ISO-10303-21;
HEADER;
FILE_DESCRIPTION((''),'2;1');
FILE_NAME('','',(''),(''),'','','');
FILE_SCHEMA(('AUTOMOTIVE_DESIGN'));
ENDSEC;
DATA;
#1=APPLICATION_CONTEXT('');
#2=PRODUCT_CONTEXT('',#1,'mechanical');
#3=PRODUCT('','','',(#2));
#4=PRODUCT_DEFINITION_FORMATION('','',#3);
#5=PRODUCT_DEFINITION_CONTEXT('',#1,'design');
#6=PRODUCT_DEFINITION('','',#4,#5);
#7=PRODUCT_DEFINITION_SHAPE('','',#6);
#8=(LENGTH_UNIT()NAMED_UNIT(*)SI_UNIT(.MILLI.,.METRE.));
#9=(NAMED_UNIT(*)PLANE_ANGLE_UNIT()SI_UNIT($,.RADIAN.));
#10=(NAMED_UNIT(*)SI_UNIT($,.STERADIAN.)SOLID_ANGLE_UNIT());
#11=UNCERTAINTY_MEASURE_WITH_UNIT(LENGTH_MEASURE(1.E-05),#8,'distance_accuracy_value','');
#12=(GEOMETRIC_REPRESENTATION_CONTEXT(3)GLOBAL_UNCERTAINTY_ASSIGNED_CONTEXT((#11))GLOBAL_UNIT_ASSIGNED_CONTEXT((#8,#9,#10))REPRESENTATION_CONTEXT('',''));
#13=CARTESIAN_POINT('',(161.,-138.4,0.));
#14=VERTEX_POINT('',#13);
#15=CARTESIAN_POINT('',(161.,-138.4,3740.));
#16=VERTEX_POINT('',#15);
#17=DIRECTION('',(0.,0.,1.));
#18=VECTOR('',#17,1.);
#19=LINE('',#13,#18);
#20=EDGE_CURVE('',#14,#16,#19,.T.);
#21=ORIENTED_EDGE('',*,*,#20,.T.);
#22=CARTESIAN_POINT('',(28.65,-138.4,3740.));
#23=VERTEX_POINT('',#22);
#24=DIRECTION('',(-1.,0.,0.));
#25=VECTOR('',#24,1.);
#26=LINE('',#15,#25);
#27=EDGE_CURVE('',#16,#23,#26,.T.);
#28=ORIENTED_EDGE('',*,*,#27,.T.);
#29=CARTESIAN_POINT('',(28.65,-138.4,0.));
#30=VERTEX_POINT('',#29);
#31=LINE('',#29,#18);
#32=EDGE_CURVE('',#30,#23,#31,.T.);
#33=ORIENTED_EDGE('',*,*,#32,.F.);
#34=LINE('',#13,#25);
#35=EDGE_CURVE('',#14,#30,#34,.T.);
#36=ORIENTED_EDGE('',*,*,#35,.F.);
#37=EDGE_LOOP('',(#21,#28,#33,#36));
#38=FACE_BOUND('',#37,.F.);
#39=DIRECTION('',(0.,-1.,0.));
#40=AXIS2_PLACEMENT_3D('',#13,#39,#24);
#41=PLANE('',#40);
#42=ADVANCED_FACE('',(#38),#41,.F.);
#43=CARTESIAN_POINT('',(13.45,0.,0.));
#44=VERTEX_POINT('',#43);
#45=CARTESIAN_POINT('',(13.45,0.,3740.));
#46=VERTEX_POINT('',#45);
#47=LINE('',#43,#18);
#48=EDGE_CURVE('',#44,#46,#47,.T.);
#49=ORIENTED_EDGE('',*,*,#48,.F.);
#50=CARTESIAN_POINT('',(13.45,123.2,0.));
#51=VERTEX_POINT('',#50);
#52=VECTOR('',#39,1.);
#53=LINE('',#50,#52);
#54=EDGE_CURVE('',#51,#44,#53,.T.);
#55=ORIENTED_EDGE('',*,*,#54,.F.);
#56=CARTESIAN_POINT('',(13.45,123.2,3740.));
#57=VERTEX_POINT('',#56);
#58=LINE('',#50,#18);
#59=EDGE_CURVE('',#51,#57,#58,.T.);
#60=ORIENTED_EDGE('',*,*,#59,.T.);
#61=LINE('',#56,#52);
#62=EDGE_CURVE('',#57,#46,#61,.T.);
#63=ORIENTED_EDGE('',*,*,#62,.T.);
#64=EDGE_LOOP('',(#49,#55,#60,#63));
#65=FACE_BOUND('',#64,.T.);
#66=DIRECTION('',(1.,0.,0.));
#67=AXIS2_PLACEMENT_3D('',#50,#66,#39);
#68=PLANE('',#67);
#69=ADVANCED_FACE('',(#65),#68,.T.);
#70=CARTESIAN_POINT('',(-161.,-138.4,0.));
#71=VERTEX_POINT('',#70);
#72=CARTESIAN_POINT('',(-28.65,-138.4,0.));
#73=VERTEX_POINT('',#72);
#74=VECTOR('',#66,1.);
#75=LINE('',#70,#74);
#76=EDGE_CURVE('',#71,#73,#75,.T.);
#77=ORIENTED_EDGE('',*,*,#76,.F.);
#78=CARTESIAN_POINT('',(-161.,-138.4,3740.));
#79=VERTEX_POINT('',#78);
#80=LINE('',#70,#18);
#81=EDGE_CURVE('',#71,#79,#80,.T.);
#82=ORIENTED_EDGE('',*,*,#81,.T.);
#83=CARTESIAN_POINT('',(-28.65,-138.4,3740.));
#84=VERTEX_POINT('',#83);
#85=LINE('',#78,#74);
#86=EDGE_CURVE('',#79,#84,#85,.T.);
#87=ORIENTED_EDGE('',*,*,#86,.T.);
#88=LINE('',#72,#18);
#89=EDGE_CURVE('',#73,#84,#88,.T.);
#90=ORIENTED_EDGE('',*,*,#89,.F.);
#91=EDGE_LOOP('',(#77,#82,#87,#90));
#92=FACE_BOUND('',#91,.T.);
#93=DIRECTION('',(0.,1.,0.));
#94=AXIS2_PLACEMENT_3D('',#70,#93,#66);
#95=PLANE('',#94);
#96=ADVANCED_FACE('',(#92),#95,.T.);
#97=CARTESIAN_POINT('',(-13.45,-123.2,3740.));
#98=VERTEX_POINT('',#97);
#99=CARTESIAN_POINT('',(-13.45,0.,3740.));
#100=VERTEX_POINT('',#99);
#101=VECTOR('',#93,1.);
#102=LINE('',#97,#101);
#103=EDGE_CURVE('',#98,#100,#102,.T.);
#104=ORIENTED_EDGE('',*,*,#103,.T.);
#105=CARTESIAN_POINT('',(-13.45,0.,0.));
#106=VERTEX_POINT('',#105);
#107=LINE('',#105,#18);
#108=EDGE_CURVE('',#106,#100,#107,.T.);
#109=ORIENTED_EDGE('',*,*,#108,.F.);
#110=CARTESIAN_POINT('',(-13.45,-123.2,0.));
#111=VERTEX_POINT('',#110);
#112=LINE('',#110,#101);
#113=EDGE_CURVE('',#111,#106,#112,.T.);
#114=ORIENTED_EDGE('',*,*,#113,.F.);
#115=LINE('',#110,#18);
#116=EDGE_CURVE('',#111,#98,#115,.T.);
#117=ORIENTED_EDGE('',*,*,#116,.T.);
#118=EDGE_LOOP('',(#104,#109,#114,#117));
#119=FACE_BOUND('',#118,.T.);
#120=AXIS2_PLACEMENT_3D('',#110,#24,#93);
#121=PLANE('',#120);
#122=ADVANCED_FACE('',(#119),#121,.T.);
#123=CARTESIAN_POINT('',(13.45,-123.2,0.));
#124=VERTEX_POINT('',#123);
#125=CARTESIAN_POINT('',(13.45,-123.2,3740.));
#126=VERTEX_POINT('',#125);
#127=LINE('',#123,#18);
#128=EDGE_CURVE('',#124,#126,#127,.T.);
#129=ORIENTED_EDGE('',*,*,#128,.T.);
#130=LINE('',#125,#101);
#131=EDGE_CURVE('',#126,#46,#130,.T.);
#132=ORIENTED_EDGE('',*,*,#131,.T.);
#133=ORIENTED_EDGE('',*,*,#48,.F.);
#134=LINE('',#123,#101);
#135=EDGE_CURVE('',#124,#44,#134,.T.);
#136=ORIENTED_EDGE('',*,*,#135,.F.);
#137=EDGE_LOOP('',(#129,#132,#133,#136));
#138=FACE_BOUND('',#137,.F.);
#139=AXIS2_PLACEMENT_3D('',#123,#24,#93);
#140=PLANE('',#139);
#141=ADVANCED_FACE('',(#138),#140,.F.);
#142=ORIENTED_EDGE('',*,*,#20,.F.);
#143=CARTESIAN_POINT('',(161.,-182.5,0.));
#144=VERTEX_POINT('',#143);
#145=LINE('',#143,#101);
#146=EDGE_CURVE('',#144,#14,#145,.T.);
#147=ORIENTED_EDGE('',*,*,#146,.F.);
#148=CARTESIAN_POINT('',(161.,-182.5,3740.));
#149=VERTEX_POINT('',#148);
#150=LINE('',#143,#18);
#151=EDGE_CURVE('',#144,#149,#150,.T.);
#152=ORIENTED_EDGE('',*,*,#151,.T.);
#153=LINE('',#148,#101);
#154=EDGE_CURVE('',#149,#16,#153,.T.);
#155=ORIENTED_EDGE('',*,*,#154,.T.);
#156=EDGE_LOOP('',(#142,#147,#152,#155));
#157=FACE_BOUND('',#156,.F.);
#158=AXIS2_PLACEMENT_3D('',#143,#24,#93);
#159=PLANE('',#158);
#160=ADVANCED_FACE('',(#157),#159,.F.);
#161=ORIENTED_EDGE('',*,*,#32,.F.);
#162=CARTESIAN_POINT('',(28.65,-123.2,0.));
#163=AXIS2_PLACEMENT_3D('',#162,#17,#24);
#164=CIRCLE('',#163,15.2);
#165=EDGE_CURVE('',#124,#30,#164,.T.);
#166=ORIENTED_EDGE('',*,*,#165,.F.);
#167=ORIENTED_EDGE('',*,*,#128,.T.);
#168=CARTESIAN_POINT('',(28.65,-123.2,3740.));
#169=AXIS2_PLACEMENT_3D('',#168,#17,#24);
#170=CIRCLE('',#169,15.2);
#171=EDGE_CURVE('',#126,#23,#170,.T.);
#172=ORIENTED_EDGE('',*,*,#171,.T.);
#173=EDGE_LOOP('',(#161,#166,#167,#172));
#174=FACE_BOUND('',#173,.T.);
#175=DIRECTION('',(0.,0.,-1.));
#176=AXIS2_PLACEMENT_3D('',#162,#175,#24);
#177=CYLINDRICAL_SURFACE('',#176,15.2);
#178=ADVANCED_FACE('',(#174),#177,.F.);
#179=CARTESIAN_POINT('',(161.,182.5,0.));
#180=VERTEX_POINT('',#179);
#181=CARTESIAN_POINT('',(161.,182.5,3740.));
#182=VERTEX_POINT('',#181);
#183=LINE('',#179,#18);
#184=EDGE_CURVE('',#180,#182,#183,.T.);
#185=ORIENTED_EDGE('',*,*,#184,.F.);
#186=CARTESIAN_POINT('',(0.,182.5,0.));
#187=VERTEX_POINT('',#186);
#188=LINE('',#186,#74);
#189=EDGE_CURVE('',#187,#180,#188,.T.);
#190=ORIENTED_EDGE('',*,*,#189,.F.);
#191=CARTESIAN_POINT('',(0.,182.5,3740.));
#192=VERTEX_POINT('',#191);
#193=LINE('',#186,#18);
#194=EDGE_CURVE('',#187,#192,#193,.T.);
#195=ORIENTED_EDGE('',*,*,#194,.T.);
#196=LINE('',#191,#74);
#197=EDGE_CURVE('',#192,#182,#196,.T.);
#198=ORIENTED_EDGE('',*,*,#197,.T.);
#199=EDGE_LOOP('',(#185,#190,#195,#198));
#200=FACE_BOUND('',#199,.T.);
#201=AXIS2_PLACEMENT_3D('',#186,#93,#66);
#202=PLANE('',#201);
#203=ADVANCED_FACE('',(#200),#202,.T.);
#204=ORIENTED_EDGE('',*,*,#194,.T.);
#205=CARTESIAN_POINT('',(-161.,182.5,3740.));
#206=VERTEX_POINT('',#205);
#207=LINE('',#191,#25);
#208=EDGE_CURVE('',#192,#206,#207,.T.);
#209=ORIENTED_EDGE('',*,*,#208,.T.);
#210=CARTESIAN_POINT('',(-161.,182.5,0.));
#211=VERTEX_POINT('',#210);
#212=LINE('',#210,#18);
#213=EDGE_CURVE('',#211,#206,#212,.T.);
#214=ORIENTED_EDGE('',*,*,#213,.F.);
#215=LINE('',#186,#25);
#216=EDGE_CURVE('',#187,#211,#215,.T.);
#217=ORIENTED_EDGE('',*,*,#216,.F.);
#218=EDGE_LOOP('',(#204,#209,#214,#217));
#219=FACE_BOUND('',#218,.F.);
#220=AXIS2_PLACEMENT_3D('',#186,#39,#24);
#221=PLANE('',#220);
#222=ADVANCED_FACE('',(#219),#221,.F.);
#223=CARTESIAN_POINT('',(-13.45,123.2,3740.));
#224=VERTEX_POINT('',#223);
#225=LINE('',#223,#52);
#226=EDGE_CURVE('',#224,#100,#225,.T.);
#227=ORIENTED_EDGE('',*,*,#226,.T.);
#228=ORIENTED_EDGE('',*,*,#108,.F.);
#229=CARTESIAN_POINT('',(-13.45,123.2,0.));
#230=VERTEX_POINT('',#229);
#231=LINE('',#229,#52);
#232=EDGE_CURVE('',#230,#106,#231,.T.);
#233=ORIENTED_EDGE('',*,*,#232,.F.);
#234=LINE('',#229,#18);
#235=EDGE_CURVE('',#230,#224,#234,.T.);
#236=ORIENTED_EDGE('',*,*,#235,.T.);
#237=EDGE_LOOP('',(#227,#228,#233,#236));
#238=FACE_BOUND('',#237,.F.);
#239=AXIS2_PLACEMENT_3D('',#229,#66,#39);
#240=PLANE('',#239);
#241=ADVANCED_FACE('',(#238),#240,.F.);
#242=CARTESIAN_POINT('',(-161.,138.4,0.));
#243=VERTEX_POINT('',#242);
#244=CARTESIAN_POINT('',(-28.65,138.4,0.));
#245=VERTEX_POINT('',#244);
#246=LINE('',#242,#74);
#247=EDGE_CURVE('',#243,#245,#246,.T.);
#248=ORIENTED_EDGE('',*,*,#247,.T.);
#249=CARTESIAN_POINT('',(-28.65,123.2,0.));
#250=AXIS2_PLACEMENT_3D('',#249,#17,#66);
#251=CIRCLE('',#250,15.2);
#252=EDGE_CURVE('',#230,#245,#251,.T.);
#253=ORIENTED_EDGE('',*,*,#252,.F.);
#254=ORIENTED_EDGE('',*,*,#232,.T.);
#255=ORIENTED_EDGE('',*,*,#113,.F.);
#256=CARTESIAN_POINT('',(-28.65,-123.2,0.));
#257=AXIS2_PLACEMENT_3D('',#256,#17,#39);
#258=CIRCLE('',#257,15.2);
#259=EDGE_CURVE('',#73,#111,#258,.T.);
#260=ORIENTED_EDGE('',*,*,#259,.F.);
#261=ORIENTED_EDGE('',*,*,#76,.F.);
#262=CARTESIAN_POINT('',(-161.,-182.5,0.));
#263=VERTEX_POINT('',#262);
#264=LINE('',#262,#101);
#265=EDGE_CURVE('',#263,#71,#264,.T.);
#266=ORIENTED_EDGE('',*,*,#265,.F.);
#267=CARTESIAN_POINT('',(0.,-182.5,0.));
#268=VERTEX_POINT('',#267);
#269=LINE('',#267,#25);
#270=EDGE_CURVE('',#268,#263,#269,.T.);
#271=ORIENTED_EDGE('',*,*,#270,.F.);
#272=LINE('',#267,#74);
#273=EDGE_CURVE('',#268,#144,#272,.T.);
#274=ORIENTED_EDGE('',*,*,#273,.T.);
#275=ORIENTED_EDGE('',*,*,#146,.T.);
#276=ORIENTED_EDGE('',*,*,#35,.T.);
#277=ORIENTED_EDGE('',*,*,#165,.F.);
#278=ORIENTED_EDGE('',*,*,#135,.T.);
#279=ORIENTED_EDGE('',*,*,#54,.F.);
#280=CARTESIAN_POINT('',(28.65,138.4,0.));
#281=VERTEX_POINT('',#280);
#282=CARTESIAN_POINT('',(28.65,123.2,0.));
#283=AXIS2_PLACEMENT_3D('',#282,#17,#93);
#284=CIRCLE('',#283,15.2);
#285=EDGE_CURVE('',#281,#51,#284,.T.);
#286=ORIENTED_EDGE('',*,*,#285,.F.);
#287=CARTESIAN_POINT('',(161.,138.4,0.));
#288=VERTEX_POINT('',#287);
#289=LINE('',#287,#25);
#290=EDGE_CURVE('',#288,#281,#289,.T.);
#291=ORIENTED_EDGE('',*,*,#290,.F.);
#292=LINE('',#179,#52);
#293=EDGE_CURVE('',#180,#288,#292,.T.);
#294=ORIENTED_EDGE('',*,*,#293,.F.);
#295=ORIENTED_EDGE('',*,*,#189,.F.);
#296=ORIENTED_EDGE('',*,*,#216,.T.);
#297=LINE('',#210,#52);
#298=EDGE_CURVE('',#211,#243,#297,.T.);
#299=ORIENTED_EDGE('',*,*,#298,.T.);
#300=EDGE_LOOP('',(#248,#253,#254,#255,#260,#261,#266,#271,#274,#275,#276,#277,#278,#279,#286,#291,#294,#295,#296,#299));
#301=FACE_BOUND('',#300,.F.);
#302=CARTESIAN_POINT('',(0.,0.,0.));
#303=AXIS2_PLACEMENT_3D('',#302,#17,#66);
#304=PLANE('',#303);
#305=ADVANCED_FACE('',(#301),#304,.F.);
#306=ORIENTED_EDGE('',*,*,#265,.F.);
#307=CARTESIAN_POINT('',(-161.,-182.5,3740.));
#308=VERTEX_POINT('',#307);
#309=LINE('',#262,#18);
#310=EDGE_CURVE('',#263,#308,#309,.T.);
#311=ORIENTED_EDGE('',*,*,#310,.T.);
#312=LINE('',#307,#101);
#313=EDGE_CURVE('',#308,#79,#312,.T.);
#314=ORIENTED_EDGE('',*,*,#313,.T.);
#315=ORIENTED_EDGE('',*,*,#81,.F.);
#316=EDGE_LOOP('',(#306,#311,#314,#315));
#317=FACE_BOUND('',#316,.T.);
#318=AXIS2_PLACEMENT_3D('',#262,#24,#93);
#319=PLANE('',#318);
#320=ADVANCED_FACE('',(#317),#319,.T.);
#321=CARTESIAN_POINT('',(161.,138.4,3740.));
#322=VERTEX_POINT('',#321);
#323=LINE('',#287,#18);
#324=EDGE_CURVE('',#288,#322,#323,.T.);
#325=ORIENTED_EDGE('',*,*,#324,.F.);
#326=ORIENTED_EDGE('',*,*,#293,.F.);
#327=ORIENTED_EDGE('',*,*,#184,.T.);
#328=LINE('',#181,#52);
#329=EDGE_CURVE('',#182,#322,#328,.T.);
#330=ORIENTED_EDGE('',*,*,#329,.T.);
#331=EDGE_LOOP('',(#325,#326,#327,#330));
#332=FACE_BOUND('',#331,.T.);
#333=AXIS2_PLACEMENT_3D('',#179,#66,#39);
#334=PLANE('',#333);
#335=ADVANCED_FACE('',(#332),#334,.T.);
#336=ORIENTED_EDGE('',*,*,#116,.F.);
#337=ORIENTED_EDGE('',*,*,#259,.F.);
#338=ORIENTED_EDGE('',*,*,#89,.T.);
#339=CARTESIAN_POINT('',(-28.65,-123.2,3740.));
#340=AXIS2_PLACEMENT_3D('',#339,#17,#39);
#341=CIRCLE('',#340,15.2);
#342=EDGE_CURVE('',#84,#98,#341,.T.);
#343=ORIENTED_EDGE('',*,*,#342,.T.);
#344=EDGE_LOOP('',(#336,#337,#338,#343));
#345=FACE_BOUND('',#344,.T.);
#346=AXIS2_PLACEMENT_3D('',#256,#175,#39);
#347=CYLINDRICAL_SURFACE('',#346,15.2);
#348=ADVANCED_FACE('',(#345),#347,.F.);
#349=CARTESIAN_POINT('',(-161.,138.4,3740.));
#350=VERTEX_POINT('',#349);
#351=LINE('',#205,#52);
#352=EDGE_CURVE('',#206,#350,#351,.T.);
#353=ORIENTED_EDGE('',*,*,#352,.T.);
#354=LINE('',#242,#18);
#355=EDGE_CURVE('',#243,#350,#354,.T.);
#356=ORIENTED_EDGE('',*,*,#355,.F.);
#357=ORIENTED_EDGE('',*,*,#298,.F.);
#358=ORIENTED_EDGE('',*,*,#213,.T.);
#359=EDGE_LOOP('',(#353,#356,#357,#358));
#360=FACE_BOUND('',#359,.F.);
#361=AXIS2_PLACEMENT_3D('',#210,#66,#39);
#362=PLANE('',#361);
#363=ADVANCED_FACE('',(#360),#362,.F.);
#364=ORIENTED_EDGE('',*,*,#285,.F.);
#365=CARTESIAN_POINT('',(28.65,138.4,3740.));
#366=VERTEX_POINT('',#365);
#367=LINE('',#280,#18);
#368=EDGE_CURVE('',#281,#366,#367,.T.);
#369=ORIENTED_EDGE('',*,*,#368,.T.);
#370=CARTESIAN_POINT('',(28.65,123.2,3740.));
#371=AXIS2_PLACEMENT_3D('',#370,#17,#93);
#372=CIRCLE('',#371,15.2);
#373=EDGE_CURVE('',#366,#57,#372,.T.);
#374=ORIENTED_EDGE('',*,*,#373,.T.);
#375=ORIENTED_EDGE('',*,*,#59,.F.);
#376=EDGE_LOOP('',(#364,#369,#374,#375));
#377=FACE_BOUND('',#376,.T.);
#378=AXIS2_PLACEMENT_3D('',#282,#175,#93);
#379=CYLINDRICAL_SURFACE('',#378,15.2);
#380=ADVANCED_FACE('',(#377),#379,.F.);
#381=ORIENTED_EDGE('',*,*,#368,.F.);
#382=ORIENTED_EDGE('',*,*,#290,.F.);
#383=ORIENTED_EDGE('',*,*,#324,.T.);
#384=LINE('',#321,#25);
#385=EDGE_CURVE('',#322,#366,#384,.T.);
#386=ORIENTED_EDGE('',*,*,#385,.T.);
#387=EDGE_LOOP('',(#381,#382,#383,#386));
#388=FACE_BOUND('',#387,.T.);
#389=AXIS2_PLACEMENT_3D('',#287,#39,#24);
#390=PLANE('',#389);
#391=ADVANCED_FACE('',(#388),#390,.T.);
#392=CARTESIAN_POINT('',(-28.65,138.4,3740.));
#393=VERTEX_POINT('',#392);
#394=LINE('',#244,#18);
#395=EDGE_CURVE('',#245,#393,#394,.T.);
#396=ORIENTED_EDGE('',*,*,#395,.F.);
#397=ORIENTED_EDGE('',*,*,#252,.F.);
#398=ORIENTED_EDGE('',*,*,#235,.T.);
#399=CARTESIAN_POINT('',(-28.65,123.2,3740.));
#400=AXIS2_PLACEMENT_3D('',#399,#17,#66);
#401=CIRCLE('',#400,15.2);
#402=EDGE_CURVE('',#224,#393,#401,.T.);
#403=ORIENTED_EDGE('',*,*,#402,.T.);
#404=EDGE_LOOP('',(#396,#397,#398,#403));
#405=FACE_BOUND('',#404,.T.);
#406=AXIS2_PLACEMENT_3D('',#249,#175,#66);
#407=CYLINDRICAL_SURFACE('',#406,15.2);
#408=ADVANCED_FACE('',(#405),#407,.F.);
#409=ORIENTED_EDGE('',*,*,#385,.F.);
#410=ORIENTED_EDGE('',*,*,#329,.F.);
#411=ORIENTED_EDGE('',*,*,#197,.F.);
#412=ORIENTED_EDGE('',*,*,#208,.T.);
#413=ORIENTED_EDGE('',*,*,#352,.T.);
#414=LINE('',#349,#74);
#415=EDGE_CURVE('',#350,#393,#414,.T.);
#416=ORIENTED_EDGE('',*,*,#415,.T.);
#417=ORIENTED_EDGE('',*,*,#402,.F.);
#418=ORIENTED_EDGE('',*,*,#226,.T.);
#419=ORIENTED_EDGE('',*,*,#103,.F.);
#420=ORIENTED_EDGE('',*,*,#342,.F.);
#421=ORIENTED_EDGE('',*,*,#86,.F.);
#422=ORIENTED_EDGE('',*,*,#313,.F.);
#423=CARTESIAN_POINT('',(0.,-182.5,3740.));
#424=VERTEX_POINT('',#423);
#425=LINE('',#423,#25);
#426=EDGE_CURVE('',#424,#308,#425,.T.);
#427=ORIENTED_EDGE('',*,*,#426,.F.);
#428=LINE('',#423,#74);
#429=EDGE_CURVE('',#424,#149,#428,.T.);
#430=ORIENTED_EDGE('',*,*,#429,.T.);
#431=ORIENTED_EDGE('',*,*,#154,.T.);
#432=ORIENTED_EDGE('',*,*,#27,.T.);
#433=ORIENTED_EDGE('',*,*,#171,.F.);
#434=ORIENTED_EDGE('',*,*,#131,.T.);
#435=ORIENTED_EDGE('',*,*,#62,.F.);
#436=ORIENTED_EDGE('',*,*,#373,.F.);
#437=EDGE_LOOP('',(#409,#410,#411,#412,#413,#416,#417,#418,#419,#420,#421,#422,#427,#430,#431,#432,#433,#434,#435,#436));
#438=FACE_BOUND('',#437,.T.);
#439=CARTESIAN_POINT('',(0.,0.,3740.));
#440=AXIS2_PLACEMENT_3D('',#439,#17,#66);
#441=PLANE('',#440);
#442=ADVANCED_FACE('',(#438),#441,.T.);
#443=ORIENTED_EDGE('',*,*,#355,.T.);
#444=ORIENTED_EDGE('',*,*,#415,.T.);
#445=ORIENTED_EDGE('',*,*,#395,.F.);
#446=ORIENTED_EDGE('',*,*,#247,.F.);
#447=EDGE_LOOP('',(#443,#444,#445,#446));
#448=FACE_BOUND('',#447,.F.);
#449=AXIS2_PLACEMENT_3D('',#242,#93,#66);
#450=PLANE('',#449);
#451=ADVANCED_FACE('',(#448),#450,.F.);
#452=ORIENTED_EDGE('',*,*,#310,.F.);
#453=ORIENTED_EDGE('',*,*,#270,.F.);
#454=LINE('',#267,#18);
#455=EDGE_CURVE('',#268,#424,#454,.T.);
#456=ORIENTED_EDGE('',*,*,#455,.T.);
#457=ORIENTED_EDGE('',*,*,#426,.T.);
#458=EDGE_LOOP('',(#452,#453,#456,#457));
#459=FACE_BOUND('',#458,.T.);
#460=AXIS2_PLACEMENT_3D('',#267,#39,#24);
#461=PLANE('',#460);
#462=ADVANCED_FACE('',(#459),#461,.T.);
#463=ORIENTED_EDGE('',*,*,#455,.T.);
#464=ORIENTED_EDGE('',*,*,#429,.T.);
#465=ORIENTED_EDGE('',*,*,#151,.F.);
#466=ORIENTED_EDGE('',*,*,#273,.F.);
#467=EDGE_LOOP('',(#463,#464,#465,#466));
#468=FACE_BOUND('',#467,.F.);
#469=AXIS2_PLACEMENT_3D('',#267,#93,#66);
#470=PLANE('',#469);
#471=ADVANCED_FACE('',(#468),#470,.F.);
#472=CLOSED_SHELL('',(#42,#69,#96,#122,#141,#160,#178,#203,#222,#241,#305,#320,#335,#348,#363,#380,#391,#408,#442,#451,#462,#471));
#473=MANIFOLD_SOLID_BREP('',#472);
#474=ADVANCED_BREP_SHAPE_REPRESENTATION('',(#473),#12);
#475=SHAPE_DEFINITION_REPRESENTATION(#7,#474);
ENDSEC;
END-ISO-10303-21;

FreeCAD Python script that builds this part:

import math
import FreeCAD as App
import Part
import Sketcher

V = App.Vector
Q = App.Units.Quantity

doc = App.newDocument("Part")
body = doc.addObject("PartDesign::Body", "Body")

sketch1 = body.newObject("Sketcher::SketchObject", "Sketch")
sketch1.AttachmentSupport = (doc.getObject("XY_Plane"), [""])
sketch1.MapMode = "FlatFace"
sketch1.addGeometry([
    Part.LineSegment(V(-161, -138, 0), V(-161, -182, 0)),
    Part.LineSegment(V(-161, -182, 0), V(161, -182, 0)),
    Part.LineSegment(V(161, -182, 0), V(161, -138, 0)),
    Part.LineSegment(V(161, -138, 0), V(29, -138, 0)),
    Part.ArcOfCircle(Part.Circle(V(29, -123, 0), V(0, 0, 1), 15), math.radians(180), math.radians(270)),
    Part.LineSegment(V(13, -123, 0), V(13, 123, 0)),
    Part.ArcOfCircle(Part.Circle(V(29, 123, 0), V(0, 0, 1), 15), math.radians(90), math.radians(180)),
    Part.LineSegment(V(29, 138, 0), V(161, 138, 0)),
    Part.LineSegment(V(161, 138, 0), V(161, 182, 0)),
    Part.LineSegment(V(161, 182, 0), V(-161, 182, 0)),
    Part.LineSegment(V(-161, 182, 0), V(-161, 138, 0)),
    Part.LineSegment(V(-161, 138, 0), V(-29, 138, 0)),
    Part.ArcOfCircle(Part.Circle(V(-29, 123, 0), V(0, 0, 1), 15), math.radians(0), math.radians(90)),
    Part.LineSegment(V(-13, 123, 0), V(-13, -123, 0)),
    Part.ArcOfCircle(Part.Circle(V(-29, -123, 0), V(0, 0, 1), 15), math.radians(-90), math.radians(0)),
    Part.LineSegment(V(-29, -138, 0), V(-161, -138, 0)),
], False)
sketch1.addConstraint([
    Sketcher.Constraint("Coincident", 0, 2, 1, 1),
    Sketcher.Constraint("Coincident", 1, 2, 2, 1),
    Sketcher.Constraint("Coincident", 2, 2, 3, 1),
    Sketcher.Constraint("Tangent", 3, 2, 4, 2),
    Sketcher.Constraint("Tangent", 4, 1, 5, 1),
    Sketcher.Constraint("Tangent", 5, 2, 6, 2),
    Sketcher.Constraint("Tangent", 6, 1, 7, 1),
    Sketcher.Constraint("Coincident", 7, 2, 8, 1),
    Sketcher.Constraint("Coincident", 8, 2, 9, 1),
    Sketcher.Constraint("Coincident", 9, 2, 10, 1),
    Sketcher.Constraint("Coincident", 10, 2, 11, 1),
    Sketcher.Constraint("Tangent", 11, 2, 12, 2),
    Sketcher.Constraint("Tangent", 12, 1, 13, 1),
    Sketcher.Constraint("Tangent", 13, 2, 14, 2),
    Sketcher.Constraint("Tangent", 14, 1, 15, 1),
    Sketcher.Constraint("Coincident", 15, 2, 0, 1),
    Sketcher.Constraint("Vertical", 0),
    Sketcher.Constraint("Horizontal", 1),
    Sketcher.Constraint("Vertical", 2),
    Sketcher.Constraint("Horizontal", 3),
    Sketcher.Constraint("Vertical", 5),
    Sketcher.Constraint("Horizontal", 7),
    Sketcher.Constraint("Vertical", 8),
    Sketcher.Constraint("Horizontal", 9),
    Sketcher.Constraint("Vertical", 10),
    Sketcher.Constraint("Horizontal", 11),
    Sketcher.Constraint("Vertical", 13),
    Sketcher.Constraint("Horizontal", 15),
    Sketcher.Constraint("Equal", 4, 6),
    Sketcher.Constraint("Equal", 6, 12),
    Sketcher.Constraint("Equal", 12, 14),
    Sketcher.Constraint("Symmetric", 4, 3, 12, 3, -1, 1),
    Sketcher.Constraint("Symmetric", 0, 2, 8, 2, -1, 1),
    Sketcher.Constraint("Symmetric", 7, 2, 10, 2, -2),
    Sketcher.Constraint("Symmetric", 2, 2, 15, 2, -2),
    Sketcher.Constraint("Radius", 4, Q("15.2 mm")),
    Sketcher.Constraint("DistanceY", 0, 2, 0, 1, Q("44.1 mm")),
    Sketcher.Constraint("DistanceX", 0, 2, -1, 1, Q("161 mm")),
    Sketcher.Constraint("DistanceY", 0, 2, -1, 1, Q("182.5 mm")),
    Sketcher.Constraint("DistanceX", -1, 1, 4, 1, Q("13.45 mm")),
])
pad1 = body.newObject("PartDesign::Pad", "Pad")
pad1.Profile = sketch1
pad1.Length = 3740

doc.recompute()
